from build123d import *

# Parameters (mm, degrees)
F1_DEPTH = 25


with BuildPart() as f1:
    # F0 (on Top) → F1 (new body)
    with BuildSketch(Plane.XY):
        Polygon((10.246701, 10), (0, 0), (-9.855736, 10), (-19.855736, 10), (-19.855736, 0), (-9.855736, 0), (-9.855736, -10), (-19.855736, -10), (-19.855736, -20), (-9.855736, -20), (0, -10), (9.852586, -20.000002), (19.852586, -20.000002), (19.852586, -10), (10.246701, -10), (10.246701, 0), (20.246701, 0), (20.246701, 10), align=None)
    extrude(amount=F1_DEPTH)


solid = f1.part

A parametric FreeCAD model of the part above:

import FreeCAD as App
import Part
import Sketcher

V = App.Vector


def add_polygon(sketch, points):
    """Adds a closed chain of lines whose ends are joined by coincident constraints."""
    first, n = sketch.GeometryCount, len(points)
    for a, b in zip(points, points[1:] + points[:1]):
        sketch.addGeometry(Part.LineSegment(App.Vector(*a, 0), App.Vector(*b, 0)), False)
    for i in range(n):
        sketch.addConstraint(Sketcher.Constraint("Coincident", first + i, 2, first + (i + 1) % n, 1))

doc = App.newDocument("Part")
body = doc.addObject("PartDesign::Body", "Body")

# Sketch on XY plane
sketch1 = body.newObject("Sketcher::SketchObject", "Sketch")
sketch1.AttachmentSupport = (doc.getObject("XY_Plane"), [""])
sketch1.MapMode = "FlatFace"
add_polygon(sketch1, [(10.246701, 10), (0, 0), (-9.855736, 10), (-19.855736, 10), (-19.855736, 0), (-9.855736, 0), (-9.855736, -10), (-19.855736, -10), (-19.855736, -20), (-9.855736, -20), (0, -10), (9.852586, -20.000002), (19.852586, -20.000002), (19.852586, -10), (10.246701, -10), (10.246701, 0), (20.246701, 0), (20.246701, 10)])  # lines 0-17
sketch1.addConstraint(Sketcher.Constraint("Horizontal", 2))
sketch1.addConstraint(Sketcher.Constraint("Vertical", 3))
sketch1.addConstraint(Sketcher.Constraint("Horizontal", 4))
sketch1.addConstraint(Sketcher.Constraint("Vertical", 5))
sketch1.addConstraint(Sketcher.Constraint("Horizontal", 6))
sketch1.addConstraint(Sketcher.Constraint("Vertical", 7))
sketch1.addConstraint(Sketcher.Constraint("Horizontal", 8))
sketch1.addConstraint(Sketcher.Constraint("Horizontal", 11))
sketch1.addConstraint(Sketcher.Constraint("Vertical", 12))
sketch1.addConstraint(Sketcher.Constraint("Horizontal", 13))
sketch1.addConstraint(Sketcher.Constraint("Vertical", 14))
sketch1.addConstraint(Sketcher.Constraint("Horizontal", 15))
sketch1.addConstraint(Sketcher.Constraint("Vertical", 16))
sketch1.addConstraint(Sketcher.Constraint("Horizontal", 17))
sketch1.addConstraint(Sketcher.Constraint("Coincident", 0, 2, -1, 1))
sketch1.addConstraint(Sketcher.Constraint("Symmetric", 1, 2, 5, 2, -1))
sketch1.addConstraint(Sketcher.Constraint("Symmetric", 13, 2, 17, 2, -1))
sketch1.addConstraint(Sketcher.Constraint("PointOnObject", 3, 2, -1))
sketch1.addConstraint(Sketcher.Constraint("PointOnObject", 9, 2, -2))
sketch1.addConstraint(Sketcher.Constraint("PointOnObject", 14, 2, -1))
sketch1.addConstraint(Sketcher.Constraint("Horizontal", 6, 2, 9, 2))
sketch1.addConstraint(Sketcher.Constraint("Horizontal", 8, 2, 10, 2))
sketch1.addConstraint(Sketcher.Constraint("Horizontal", 9, 2, 12, 2))
sketch1.addConstraint(Sketcher.Constraint("Vertical", 3, 2, 6, 2))
sketch1.addConstraint(Sketcher.Constraint("Vertical", 5, 2, 8, 2))
sketch1.addConstraint(Sketcher.Constraint("Equal", 8, 11))
sketch1.addConstraint(Sketcher.Constraint("Equal", 11, 15))
sketch1.addConstraint(Sketcher.Constraint("Equal", 17, 3))
sketch1.addConstraint(Sketcher.Constraint("Equal", 5, 7))
sketch1.addConstraint(Sketcher.Constraint("DistanceX", 2, 2, 2, 1, 10.0))
sketch1.addConstraint(Sketcher.Constraint("DistanceX", -1, 1, 13, 2, 10.246701))
sketch1.addConstraint(Sketcher.Constraint("DistanceX", 13, 2, 13, 1, 9.605885))
sketch1.addConstraint(Sketcher.Constraint("DistanceX", 8, 2, 11, 2, 29.708322))
pad1 = body.newObject("PartDesign::Pad", "Pad")
pad1.Profile = sketch1
pad1.Length = 25

doc.recompute()
